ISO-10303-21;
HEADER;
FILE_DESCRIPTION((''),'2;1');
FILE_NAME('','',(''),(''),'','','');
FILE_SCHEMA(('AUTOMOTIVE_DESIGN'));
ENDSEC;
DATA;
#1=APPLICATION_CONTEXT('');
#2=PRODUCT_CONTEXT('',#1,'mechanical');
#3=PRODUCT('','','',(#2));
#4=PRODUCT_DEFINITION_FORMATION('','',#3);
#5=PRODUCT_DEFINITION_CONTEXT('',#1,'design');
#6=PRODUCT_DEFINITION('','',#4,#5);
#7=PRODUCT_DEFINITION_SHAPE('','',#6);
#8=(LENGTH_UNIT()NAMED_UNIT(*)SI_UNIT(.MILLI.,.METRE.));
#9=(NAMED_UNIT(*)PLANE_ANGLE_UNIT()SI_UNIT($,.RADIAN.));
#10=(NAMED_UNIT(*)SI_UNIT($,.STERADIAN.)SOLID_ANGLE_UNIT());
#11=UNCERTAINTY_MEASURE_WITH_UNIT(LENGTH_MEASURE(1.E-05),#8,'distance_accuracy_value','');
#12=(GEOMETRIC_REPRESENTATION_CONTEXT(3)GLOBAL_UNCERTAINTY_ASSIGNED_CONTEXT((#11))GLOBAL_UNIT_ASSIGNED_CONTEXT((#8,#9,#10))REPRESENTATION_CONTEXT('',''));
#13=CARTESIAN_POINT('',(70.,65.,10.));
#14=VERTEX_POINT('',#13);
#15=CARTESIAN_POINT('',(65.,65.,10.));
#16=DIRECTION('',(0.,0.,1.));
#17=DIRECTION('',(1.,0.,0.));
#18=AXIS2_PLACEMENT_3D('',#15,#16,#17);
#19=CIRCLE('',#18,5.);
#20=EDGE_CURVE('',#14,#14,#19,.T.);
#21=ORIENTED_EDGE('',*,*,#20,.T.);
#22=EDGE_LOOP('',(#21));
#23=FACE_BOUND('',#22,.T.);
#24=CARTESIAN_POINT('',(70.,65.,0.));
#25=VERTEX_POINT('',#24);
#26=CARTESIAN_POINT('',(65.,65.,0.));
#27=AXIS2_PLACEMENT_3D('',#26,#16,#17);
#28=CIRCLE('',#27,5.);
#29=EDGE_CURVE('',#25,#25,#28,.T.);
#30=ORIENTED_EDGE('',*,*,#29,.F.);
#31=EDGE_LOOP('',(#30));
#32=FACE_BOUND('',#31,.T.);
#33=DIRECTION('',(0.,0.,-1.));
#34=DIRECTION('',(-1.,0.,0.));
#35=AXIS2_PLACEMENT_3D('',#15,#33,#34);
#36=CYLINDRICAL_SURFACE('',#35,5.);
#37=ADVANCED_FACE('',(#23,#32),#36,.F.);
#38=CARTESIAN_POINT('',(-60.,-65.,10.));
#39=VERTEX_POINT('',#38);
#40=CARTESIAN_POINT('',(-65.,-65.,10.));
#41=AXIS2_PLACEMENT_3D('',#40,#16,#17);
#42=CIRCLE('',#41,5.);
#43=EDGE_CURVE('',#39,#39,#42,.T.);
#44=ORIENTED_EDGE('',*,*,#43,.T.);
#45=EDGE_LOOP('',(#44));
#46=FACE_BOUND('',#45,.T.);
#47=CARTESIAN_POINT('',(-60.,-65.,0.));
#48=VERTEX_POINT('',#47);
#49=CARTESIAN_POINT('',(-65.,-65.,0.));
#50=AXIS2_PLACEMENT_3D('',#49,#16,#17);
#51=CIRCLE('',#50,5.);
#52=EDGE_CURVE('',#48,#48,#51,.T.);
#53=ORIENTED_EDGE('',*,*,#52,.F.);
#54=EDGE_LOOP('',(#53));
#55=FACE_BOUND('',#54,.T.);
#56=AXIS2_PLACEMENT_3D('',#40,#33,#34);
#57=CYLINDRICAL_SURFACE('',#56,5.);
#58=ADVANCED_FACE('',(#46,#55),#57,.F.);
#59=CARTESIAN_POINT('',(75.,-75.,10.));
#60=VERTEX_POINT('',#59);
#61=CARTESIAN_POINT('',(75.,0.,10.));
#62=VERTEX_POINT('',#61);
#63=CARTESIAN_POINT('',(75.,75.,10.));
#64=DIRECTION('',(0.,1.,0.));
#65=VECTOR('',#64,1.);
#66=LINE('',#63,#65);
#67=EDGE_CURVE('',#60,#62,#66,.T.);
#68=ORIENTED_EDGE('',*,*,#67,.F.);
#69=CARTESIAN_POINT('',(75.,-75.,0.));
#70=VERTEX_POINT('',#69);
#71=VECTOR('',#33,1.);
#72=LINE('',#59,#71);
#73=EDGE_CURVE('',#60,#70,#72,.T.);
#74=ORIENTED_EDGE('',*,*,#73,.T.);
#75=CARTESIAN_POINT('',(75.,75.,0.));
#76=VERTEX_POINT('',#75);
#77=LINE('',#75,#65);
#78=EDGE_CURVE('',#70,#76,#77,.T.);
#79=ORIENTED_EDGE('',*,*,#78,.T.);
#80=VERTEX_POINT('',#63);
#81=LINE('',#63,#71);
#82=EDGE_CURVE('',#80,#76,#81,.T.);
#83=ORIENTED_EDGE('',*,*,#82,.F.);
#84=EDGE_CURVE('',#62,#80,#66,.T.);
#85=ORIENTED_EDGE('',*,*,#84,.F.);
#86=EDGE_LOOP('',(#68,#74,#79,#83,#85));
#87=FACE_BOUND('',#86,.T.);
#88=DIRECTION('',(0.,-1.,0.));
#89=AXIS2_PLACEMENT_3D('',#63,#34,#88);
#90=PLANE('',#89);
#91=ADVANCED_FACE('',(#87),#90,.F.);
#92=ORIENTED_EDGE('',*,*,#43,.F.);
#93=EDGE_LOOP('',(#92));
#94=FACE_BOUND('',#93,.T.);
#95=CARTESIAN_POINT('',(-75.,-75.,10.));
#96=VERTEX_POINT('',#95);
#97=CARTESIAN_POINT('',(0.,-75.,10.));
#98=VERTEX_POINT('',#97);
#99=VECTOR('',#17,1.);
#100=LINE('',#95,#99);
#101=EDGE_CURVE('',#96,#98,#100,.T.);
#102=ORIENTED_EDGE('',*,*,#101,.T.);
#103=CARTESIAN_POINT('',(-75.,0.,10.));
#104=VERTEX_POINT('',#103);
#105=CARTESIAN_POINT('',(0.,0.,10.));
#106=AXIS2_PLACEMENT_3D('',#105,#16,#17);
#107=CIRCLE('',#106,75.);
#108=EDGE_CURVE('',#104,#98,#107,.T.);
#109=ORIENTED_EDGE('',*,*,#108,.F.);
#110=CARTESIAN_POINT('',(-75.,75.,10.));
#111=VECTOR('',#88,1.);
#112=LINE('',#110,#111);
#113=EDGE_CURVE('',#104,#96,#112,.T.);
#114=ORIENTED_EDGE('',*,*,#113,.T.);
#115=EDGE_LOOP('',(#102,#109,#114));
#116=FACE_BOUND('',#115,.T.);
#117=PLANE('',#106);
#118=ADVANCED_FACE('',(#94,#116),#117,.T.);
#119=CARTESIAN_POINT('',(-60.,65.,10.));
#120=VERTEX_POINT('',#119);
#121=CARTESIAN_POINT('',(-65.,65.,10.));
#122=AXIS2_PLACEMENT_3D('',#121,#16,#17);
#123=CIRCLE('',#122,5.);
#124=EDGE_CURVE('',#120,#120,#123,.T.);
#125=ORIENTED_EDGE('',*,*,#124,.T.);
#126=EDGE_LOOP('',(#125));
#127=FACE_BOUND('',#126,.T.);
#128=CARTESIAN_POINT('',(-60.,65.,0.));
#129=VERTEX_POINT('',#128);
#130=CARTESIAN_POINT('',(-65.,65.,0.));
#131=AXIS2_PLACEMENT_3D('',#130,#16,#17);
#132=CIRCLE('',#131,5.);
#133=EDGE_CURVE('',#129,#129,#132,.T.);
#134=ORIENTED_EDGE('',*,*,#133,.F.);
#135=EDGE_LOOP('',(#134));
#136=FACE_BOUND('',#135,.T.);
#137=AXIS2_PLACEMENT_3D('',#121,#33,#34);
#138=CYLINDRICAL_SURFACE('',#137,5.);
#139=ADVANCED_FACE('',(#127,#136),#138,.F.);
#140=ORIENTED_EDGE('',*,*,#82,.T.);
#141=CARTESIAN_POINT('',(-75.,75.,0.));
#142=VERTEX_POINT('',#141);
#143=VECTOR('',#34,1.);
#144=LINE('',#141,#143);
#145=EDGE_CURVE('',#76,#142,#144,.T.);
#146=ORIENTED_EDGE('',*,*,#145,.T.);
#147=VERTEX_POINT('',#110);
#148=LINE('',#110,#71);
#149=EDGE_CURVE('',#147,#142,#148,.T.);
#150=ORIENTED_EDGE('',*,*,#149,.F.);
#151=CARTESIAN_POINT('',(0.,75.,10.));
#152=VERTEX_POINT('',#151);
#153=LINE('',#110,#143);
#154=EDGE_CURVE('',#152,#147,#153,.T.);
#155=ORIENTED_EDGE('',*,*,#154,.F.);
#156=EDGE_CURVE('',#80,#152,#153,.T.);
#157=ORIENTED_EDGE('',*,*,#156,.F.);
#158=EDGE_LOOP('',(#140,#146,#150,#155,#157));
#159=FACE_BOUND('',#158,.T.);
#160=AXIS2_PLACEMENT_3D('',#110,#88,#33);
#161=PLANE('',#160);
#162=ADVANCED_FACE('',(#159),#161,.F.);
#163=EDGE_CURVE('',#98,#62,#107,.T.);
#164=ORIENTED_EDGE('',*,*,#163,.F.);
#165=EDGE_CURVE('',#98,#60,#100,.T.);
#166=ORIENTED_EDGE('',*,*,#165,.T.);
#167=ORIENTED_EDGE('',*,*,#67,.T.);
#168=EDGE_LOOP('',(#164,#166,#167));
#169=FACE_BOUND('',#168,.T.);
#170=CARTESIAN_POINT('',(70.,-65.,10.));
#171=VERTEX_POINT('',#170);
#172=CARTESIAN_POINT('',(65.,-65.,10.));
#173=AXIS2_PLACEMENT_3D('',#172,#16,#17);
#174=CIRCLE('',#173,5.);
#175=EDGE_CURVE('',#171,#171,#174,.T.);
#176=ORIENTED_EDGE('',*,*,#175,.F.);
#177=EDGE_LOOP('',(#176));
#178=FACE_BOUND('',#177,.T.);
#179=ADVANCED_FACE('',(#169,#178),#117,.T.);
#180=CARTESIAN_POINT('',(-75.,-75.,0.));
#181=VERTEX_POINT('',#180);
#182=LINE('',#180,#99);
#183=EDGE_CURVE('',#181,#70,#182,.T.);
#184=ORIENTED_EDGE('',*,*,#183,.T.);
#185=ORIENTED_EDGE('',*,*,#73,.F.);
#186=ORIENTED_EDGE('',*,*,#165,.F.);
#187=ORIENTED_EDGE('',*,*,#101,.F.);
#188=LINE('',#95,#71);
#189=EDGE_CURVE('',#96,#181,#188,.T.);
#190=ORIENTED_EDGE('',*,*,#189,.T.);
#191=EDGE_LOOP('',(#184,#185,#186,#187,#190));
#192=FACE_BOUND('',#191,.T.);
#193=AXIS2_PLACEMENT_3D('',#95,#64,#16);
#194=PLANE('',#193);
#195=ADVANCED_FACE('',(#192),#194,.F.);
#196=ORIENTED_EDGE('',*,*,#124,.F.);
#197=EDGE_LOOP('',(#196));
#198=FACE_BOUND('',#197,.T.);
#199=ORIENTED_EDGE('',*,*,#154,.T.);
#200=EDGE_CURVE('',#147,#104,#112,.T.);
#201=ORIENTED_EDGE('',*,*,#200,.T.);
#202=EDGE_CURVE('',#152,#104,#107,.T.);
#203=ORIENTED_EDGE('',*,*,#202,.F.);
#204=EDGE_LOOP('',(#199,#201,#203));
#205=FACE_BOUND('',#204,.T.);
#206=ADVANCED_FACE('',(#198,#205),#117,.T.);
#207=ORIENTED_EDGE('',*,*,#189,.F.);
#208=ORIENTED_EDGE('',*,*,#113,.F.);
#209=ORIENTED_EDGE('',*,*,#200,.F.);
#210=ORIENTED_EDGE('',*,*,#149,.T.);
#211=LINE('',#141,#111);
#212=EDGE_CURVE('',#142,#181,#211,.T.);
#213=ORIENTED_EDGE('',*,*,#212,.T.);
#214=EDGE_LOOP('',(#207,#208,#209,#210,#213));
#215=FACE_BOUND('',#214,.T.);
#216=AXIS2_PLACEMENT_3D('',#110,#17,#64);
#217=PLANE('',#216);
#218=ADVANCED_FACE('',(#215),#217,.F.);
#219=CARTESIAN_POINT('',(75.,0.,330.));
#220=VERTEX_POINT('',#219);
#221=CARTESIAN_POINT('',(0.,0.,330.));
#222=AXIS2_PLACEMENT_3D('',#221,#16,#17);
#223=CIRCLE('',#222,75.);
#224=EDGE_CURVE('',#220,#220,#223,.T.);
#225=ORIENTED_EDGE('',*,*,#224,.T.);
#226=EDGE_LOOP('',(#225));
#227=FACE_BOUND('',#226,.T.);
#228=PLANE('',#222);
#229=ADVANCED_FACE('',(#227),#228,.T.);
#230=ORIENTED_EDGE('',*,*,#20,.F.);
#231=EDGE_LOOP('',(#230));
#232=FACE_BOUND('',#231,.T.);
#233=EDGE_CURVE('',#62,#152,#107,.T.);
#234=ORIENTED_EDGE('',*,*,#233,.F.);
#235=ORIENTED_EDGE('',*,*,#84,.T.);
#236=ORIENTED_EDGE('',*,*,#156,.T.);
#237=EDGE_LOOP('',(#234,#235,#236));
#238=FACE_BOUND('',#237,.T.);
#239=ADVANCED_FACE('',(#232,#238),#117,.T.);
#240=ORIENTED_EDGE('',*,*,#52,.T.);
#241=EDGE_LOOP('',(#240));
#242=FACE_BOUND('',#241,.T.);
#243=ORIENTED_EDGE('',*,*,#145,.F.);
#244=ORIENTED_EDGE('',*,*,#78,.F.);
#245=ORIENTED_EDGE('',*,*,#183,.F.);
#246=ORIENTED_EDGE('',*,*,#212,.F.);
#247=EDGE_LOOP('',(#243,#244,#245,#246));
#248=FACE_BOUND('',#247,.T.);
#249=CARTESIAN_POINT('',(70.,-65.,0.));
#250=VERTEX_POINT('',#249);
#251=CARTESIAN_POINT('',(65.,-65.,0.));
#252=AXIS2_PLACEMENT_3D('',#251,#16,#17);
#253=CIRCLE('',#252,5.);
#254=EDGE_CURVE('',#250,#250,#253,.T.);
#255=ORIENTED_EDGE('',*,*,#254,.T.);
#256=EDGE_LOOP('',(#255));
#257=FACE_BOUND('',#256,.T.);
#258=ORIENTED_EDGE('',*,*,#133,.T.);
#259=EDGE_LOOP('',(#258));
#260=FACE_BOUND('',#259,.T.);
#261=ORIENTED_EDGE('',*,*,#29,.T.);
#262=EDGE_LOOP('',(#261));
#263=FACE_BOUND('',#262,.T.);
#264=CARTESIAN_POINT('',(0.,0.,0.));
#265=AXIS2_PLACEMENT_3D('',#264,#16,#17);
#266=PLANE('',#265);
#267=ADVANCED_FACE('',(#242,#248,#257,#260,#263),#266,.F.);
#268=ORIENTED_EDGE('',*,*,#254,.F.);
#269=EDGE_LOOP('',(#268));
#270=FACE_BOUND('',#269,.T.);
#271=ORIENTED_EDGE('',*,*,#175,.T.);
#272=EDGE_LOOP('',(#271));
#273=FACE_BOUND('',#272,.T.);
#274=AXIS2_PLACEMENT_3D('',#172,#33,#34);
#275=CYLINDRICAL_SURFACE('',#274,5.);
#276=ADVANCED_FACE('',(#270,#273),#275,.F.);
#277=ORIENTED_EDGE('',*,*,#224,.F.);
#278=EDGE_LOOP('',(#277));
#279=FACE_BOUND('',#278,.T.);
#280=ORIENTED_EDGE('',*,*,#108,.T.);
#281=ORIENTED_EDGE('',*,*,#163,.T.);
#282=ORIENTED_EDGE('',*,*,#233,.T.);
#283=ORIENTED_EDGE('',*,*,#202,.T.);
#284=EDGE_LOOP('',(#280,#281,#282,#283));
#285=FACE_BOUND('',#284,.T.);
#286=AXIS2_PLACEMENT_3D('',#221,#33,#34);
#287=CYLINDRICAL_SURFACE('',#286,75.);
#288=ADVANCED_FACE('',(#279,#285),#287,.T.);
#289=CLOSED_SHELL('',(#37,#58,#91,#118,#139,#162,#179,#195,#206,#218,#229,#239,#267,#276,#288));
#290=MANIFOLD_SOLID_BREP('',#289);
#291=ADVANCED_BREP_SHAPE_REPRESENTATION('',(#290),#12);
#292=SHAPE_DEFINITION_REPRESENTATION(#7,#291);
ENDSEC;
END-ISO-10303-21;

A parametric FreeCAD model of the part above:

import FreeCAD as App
import Part
import Sketcher
from FreeCAD import Vector


def add_polygon(sketch, points):
    """Adds a closed chain of lines whose ends are joined by coincident constraints."""
    first, n = sketch.GeometryCount, len(points)
    for a, b in zip(points, points[1:] + points[:1]):
        sketch.addGeometry(Part.LineSegment(App.Vector(*a, 0), App.Vector(*b, 0)), False)
    for i in range(n):
        sketch.addConstraint(Sketcher.Constraint("Coincident", first + i, 2, first + (i + 1) % n, 1))

doc = App.newDocument("Part")
body = doc.addObject("PartDesign::Body", "Body")

# Sketch on XY plane
sketch1 = body.newObject("Sketcher::SketchObject", "Sketch")
sketch1.AttachmentSupport = (doc.getObject("XY_Plane"), [""])
sketch1.MapMode = "FlatFace"
add_polygon(sketch1, [(-75, 75), (-75, -75), (75, -75), (75, 75)])  # lines 0-3
sketch1.addGeometry(Part.Circle(Vector(-65, -65, 0), Vector(0, 0, 1), 5), False)  # 4
sketch1.addGeometry(Part.Circle(Vector(65, -65, 0), Vector(0, 0, 1), 5), False)  # 5
sketch1.addGeometry(Part.Circle(Vector(-65, 65, 0), Vector(0, 0, 1), 5), False)  # 6
sketch1.addGeometry(Part.Circle(Vector(65, 65, 0), Vector(0, 0, 1), 5), False)  # 7
sketch1.addConstraint(Sketcher.Constraint("Vertical", 0))
sketch1.addConstraint(Sketcher.Constraint("Horizontal", 1))
sketch1.addConstraint(Sketcher.Constraint("Vertical", 2))
sketch1.addConstraint(Sketcher.Constraint("Horizontal", 3))
sketch1.addConstraint(Sketcher.Constraint("Equal", 4, 5))
sketch1.addConstraint(Sketcher.Constraint("Equal", 5, 6))
sketch1.addConstraint(Sketcher.Constraint("Equal", 6, 7))
sketch1.addConstraint(Sketcher.Constraint("Symmetric", 5, 3, 6, 3, -1, 1))
sketch1.addConstraint(Sketcher.Constraint("Symmetric", 4, 3, 7, 3, -1, 1))
sketch1.addConstraint(Sketcher.Constraint("Symmetric", 0, 2, 2, 2, -1, 1))
sketch1.addConstraint(Sketcher.Constraint("Symmetric", 4, 3, 5, 3, -2))
sketch1.addConstraint(Sketcher.Constraint("Equal", 3, 0))
sketch1.addConstraint(Sketcher.Constraint("Diameter", 4, 10.0))
sketch1.addConstraint(Sketcher.Constraint("DistanceX", 1, 1, 1, 2, 150.0))
sketch1.addConstraint(Sketcher.Constraint("DistanceX", 4, 3, -1, 1, 65.0))
sketch1.addConstraint(Sketcher.Constraint("DistanceY", 4, 3, -1, 1, 65.0))
pad1 = body.newObject("PartDesign::Pad", "Pad")
pad1.Profile = sketch1
pad1.Length = 10

# Sketch on XY plane
sketch2 = body.newObject("Sketcher::SketchObject", "Sketch001")
sketch2.AttachmentSupport = (doc.getObject("XY_Plane"), [""])
sketch2.MapMode = "FlatFace"
sketch2.AttachmentOffset = App.Placement(Vector(0, 0, 10), App.Rotation())
sketch2.addGeometry(Part.Circle(Vector(0, 0, 0), Vector(0, 0, 1), 75), False)
sketch2.addConstraint(Sketcher.Constraint("Coincident", 0, 3, -1, 1))
sketch2.addConstraint(Sketcher.Constraint("Diameter", 0, 150.0))
pad2 = body.newObject("PartDesign::Pad", "Pad001")
pad2.Profile = sketch2
pad2.Length = 320

doc.recompute()
